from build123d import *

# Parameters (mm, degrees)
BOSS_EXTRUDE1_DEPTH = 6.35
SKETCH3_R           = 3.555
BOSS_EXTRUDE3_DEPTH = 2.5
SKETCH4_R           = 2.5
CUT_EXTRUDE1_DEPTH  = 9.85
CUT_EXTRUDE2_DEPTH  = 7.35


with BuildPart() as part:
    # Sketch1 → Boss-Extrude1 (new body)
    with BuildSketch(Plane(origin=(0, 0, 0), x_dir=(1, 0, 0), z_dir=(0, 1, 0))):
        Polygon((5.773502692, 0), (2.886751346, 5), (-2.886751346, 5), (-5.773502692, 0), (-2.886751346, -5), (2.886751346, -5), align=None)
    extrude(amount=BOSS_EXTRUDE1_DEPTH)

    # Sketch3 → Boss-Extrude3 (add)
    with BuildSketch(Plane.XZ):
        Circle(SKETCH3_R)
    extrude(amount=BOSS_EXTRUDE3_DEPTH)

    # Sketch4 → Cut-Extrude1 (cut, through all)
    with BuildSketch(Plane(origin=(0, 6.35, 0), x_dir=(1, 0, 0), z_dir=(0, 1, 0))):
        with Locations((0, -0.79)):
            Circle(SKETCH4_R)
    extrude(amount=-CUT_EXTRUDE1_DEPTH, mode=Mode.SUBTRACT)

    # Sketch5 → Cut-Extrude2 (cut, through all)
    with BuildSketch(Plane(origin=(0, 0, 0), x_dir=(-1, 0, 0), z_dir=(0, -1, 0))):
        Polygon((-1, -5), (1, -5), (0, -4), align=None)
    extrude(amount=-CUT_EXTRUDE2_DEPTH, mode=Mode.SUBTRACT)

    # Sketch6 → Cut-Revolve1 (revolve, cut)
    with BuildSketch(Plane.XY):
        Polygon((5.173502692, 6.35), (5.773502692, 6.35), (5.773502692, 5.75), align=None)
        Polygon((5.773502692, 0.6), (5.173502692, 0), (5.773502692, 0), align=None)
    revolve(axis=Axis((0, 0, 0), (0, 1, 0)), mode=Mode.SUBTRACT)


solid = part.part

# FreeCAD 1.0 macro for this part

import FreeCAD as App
import Part
import Sketcher
Q = App.Units.Quantity

doc = App.newDocument("Part")
body = doc.addObject("PartDesign::Body", "Body")

# Sketch on XZ plane
sketch1 = body.newObject("Sketcher::SketchObject", "Sketch")
sketch1.AttachmentSupport = (doc.getObject("XZ_Plane"), [""])
sketch1.MapMode = "FlatFace"
sketch1.addGeometry([
    Part.LineSegment(App.Vector(6, 0, 0), App.Vector(3, -5, 0)),  # 0
    Part.LineSegment(App.Vector(3, -5, 0), App.Vector(-3, -5, 0)),  # 1
    Part.LineSegment(App.Vector(-3, -5, 0), App.Vector(-6, 0, 0)),  # 2
    Part.LineSegment(App.Vector(-6, 0, 0), App.Vector(-3, 5, 0)),  # 3
    Part.LineSegment(App.Vector(-3, 5, 0), App.Vector(3, 5, 0)),  # 4
    Part.LineSegment(App.Vector(3, 5, 0), App.Vector(6, 0, 0)),  # 5
], False)
sketch1.addConstraint([
    Sketcher.Constraint("Coincident", 0, 2, 1, 1),
    Sketcher.Constraint("Coincident", 1, 2, 2, 1),
    Sketcher.Constraint("Coincident", 2, 2, 3, 1),
    Sketcher.Constraint("Coincident", 3, 2, 4, 1),
    Sketcher.Constraint("Coincident", 4, 2, 5, 1),
    Sketcher.Constraint("Coincident", 5, 2, 0, 1),
    Sketcher.Constraint("Horizontal", 1),
    Sketcher.Constraint("Horizontal", 4),
    Sketcher.Constraint("Symmetric", 0, 2, 3, 2, -1, 1),
    Sketcher.Constraint("Symmetric", 2, 2, 5, 2, -1, 1),
    Sketcher.Constraint("PointOnObject", 2, 2, -1),
    Sketcher.Constraint("Parallel", 2, 5),
    Sketcher.Constraint("Vertical", 1, 2, 3, 2),
    Sketcher.Constraint("Angle", 0, Q("-120 deg")),
    Sketcher.Constraint("DistanceY", 0, 2, -1, 1, Q("5 mm")),
    Sketcher.Constraint("DistanceX", 1, 2, 1, 1, Q("5.773503 mm")),
])
pad1 = body.newObject("PartDesign::Pad", "Pad")
pad1.Profile = sketch1
pad1.Length = 6.35
pad1.Reversed = True

# Sketch on XZ plane
sketch2 = body.newObject("Sketcher::SketchObject", "Sketch001")
sketch2.AttachmentSupport = (doc.getObject("XZ_Plane"), [""])
sketch2.MapMode = "FlatFace"
sketch2.addGeometry(Part.Circle(App.Vector(0, 0, 0), App.Vector(0, 0, 1), 3.6), False)
sketch2.addConstraint([
    Sketcher.Constraint("Coincident", 0, 3, -1, 1),
    Sketcher.Constraint("Diameter", 0, Q("7.11 mm")),
])
pad2 = body.newObject("PartDesign::Pad", "Pad001")
pad2.Profile = sketch2
pad2.Length = 2.5

# Sketch on XZ plane
sketch3 = body.newObject("Sketcher::SketchObject", "Sketch002")
sketch3.AttachmentSupport = (doc.getObject("XZ_Plane"), [""])
sketch3.MapMode = "FlatFace"
sketch3.AttachmentOffset = App.Placement(App.Vector(0, 0, -6.35), App.Rotation())
sketch3.addGeometry(Part.Circle(App.Vector(0, 0.8, 0), App.Vector(0, 0, 1), 2.5), False)
sketch3.addConstraint([
    Sketcher.Constraint("PointOnObject", 0, 3, -2),
    Sketcher.Constraint("Diameter", 0, Q("5 mm")),
    Sketcher.Constraint("DistanceY", -1, 1, 0, 3, Q("0.79 mm")),
])
pocket1 = body.newObject("PartDesign::Pocket", "Pocket")
pocket1.Profile = sketch3
pocket1.Type = "ThroughAll"
pocket1.Reversed = True

# Sketch on XZ plane
sketch4 = body.newObject("Sketcher::SketchObject", "Sketch003")
sketch4.AttachmentSupport = (doc.getObject("XZ_Plane"), [""])
sketch4.MapMode = "FlatFace"
sketch4.addGeometry([
    Part.LineSegment(App.Vector(1, 5, 0), App.Vector(-1, 5, 0)),
    Part.LineSegment(App.Vector(-1, 5, 0), App.Vector(0, 4, 0)),
    Part.LineSegment(App.Vector(0, 4, 0), App.Vector(1, 5, 0)),
], False)
sketch4.addConstraint([
    Sketcher.Constraint("Coincident", 0, 2, 1, 1),
    Sketcher.Constraint("Coincident", 1, 2, 2, 1),
    Sketcher.Constraint("Coincident", 2, 2, 0, 1),
    Sketcher.Constraint("Horizontal", 0),
    Sketcher.Constraint("PointOnObject", 1, 2, -2),
    Sketcher.Constraint("Perpendicular", 1, 2),
    Sketcher.Constraint("Equal", 1, 2),
    Sketcher.Constraint("DistanceX", 0, 2, 0, 1, Q("2 mm")),
    Sketcher.Constraint("DistanceY", -1, 1, 0, 2, Q("5 mm")),
])
pocket2 = body.newObject("PartDesign::Pocket", "Pocket001")
pocket2.Profile = sketch4
pocket2.Type = "ThroughAll"

# Sketch on XY plane
sketch5 = body.newObject("Sketcher::SketchObject", "Sketch004")
sketch5.AttachmentSupport = (doc.getObject("XY_Plane"), [""])
sketch5.MapMode = "FlatFace"
sketch5.addGeometry([
    Part.LineSegment(App.Vector(5.8, 6.3, 0), App.Vector(5.2, 6.3, 0)),  # 0
    Part.LineSegment(App.Vector(5.2, 6.3, 0), App.Vector(5.8, 5.8, 0)),  # 1
    Part.LineSegment(App.Vector(5.8, 5.8, 0), App.Vector(5.8, 6.3, 0)),  # 2
    Part.LineSegment(App.Vector(5.8, 0.6, 0), App.Vector(5.2, 0, 0)),  # 3
    Part.LineSegment(App.Vector(5.2, 0, 0), App.Vector(5.8, 0, 0)),  # 4
    Part.LineSegment(App.Vector(5.8, 0, 0), App.Vector(5.8, 0.6, 0)),  # 5
], False)
sketch5.addConstraint([
    Sketcher.Constraint("Coincident", 0, 2, 1, 1),
    Sketcher.Constraint("Coincident", 1, 2, 2, 1),
    Sketcher.Constraint("Coincident", 2, 2, 0, 1),
    Sketcher.Constraint("Coincident", 3, 2, 4, 1),
    Sketcher.Constraint("Coincident", 4, 2, 5, 1),
    Sketcher.Constraint("Coincident", 5, 2, 3, 1),
    Sketcher.Constraint("Horizontal", 0),
    Sketcher.Constraint("Vertical", 2),
    Sketcher.Constraint("Horizontal", 4),
    Sketcher.Constraint("Vertical", 5),
    Sketcher.Constraint("PointOnObject", 3, 2, -1),
    Sketcher.Constraint("Perpendicular", 1, 3),
    Sketcher.Constraint("Vertical", 0, 2, 3, 2),
    Sketcher.Constraint("Vertical", 2, 2, 4, 2),
    Sketcher.Constraint("Equal", 4, 2),
    Sketcher.Constraint("DistanceX", 0, 2, 0, 1, Q("0.6 mm")),
    Sketcher.Constraint("DistanceY", -1, 1, 0, 2, Q("6.35 mm")),
    Sketcher.Constraint("DistanceX", -1, 1, 0, 2, Q("5.173503 mm")),
])
groove = body.newObject("PartDesign::Groove", "Groove")
groove.Profile = sketch5
groove.ReferenceAxis = (sketch5, ["V_Axis"])
groove.Angle = 360

doc.recompute()
